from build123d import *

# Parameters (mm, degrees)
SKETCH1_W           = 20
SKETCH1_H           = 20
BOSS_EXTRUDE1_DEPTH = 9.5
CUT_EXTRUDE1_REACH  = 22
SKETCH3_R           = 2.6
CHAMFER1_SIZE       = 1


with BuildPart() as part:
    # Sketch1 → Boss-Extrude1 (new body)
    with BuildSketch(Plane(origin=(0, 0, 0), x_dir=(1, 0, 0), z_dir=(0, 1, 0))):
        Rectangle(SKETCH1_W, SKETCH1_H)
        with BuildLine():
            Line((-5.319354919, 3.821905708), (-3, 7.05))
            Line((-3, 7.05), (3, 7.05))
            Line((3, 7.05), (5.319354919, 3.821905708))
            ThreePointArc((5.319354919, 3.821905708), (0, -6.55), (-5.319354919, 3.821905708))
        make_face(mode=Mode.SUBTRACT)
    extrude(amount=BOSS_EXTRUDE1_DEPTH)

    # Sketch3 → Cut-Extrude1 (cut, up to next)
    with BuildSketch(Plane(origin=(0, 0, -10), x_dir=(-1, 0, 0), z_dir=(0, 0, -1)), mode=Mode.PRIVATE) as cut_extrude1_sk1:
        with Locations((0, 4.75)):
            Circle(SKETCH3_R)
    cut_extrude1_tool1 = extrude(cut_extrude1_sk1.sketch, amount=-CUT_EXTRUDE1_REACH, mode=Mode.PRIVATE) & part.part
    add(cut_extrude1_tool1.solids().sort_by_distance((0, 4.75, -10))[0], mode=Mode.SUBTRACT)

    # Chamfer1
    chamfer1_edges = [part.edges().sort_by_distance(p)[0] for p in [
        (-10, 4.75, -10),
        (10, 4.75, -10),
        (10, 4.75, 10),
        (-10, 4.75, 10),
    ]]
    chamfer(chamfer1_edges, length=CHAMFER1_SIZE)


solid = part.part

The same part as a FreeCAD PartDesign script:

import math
import FreeCAD as App
import Part
import Sketcher
Q = App.Units.Quantity


def edges_at(feature, points):
    """Names of the edges that pass closest to the given points."""
    edges = feature.Shape.Edges
    near = lambda p: min(range(len(edges)), key=lambda i: edges[i].distToShape(Part.Vertex(*p))[0])
    return sorted({f"Edge{near(p) + 1}" for p in points})

doc = App.newDocument("Part")
body = doc.addObject("PartDesign::Body", "Body")

# Sketch on XZ plane
sketch1 = body.newObject("Sketcher::SketchObject", "Sketch")
sketch1.AttachmentSupport = (doc.getObject("XZ_Plane"), [""])
sketch1.MapMode = "FlatFace"
sketch1.addGeometry([
    Part.LineSegment(App.Vector(-10, -10, 0), App.Vector(-10, 10, 0)),  # 0
    Part.LineSegment(App.Vector(-10, 10, 0), App.Vector(10, 10, 0)),  # 1
    Part.LineSegment(App.Vector(10, 10, 0), App.Vector(10, -10, 0)),  # 2
    Part.LineSegment(App.Vector(10, -10, 0), App.Vector(-10, -10, 0)),  # 3
    Part.ArcOfCircle(Part.Circle(App.Vector(0, 0, 0), App.Vector(0, 0, 1), 6.55), math.radians(-35.696885), math.radians(215.696885)),  # 4
    Part.LineSegment(App.Vector(-5.319355, -3.821906, 0), App.Vector(-3, -7.05, 0)),  # 5
    Part.LineSegment(App.Vector(-3, -7.05, 0), App.Vector(3, -7.05, 0)),  # 6
    Part.LineSegment(App.Vector(3, -7.05, 0), App.Vector(5.319355, -3.821906, 0)),  # 7
], False)
sketch1.addConstraint([
    Sketcher.Constraint("Coincident", 0, 2, 1, 1),
    Sketcher.Constraint("Coincident", 1, 2, 2, 1),
    Sketcher.Constraint("Coincident", 2, 2, 3, 1),
    Sketcher.Constraint("Coincident", 3, 2, 0, 1),
    Sketcher.Constraint("Tangent", 4, 2, 5, 1),
    Sketcher.Constraint("Coincident", 5, 2, 6, 1),
    Sketcher.Constraint("Coincident", 6, 2, 7, 1),
    Sketcher.Constraint("Tangent", 7, 2, 4, 1),
    Sketcher.Constraint("Vertical", 0),
    Sketcher.Constraint("Horizontal", 1),
    Sketcher.Constraint("Vertical", 2),
    Sketcher.Constraint("Horizontal", 3),
    Sketcher.Constraint("Horizontal", 6),
    Sketcher.Constraint("Coincident", 4, 3, -1, 1),
    Sketcher.Constraint("Symmetric", 0, 2, 2, 2, -1, 1),
    Sketcher.Constraint("Horizontal", 4, 2, 7, 2),
    Sketcher.Constraint("Equal", 3, 0),
    Sketcher.Constraint("DistanceX", 1, 1, 1, 2, Q("20 mm")),
    Sketcher.Constraint("DistanceX", 6, 1, 6, 2, Q("6 mm")),
    Sketcher.Constraint("Radius", 4, Q("6.55 mm")),
    Sketcher.Constraint("DistanceY", 5, 2, -1, 1, Q("7.05 mm")),
])
pad1 = body.newObject("PartDesign::Pad", "Pad")
pad1.Profile = sketch1
pad1.Length = 9.5
pad1.Reversed = True

# Sketch on XY plane
sketch2 = body.newObject("Sketcher::SketchObject", "Sketch001")
sketch2.AttachmentSupport = (doc.getObject("XY_Plane"), [""])
sketch2.MapMode = "FlatFace"
sketch2.AttachmentOffset = App.Placement(App.Vector(0, 0, -10), App.Rotation())
sketch2.addGeometry(Part.Circle(App.Vector(0, 4.75, 0), App.Vector(0, 0, 1), 2.6), False)
sketch2.addConstraint([
    Sketcher.Constraint("PointOnObject", 0, 3, -2),
    Sketcher.Constraint("Diameter", 0, Q("5.2 mm")),
    Sketcher.Constraint("DistanceY", -1, 1, 0, 3, Q("4.75 mm")),
])
pocket1 = body.newObject("PartDesign::Pocket", "Pocket")
pocket1.Profile = sketch2
pocket1.Type = "UpToFirst"
pocket1.Reversed = True
doc.recompute()

chamfer = body.newObject("PartDesign::Chamfer", "Chamfer")
chamfer.Base = (pocket1, edges_at(pocket1, [
    (-10, 4.75, -10),
    (10, 4.75, -10),
    (10, 4.75, 10),
    (-10, 4.75, 10),
]))
chamfer.Size = 1

doc.recompute()
